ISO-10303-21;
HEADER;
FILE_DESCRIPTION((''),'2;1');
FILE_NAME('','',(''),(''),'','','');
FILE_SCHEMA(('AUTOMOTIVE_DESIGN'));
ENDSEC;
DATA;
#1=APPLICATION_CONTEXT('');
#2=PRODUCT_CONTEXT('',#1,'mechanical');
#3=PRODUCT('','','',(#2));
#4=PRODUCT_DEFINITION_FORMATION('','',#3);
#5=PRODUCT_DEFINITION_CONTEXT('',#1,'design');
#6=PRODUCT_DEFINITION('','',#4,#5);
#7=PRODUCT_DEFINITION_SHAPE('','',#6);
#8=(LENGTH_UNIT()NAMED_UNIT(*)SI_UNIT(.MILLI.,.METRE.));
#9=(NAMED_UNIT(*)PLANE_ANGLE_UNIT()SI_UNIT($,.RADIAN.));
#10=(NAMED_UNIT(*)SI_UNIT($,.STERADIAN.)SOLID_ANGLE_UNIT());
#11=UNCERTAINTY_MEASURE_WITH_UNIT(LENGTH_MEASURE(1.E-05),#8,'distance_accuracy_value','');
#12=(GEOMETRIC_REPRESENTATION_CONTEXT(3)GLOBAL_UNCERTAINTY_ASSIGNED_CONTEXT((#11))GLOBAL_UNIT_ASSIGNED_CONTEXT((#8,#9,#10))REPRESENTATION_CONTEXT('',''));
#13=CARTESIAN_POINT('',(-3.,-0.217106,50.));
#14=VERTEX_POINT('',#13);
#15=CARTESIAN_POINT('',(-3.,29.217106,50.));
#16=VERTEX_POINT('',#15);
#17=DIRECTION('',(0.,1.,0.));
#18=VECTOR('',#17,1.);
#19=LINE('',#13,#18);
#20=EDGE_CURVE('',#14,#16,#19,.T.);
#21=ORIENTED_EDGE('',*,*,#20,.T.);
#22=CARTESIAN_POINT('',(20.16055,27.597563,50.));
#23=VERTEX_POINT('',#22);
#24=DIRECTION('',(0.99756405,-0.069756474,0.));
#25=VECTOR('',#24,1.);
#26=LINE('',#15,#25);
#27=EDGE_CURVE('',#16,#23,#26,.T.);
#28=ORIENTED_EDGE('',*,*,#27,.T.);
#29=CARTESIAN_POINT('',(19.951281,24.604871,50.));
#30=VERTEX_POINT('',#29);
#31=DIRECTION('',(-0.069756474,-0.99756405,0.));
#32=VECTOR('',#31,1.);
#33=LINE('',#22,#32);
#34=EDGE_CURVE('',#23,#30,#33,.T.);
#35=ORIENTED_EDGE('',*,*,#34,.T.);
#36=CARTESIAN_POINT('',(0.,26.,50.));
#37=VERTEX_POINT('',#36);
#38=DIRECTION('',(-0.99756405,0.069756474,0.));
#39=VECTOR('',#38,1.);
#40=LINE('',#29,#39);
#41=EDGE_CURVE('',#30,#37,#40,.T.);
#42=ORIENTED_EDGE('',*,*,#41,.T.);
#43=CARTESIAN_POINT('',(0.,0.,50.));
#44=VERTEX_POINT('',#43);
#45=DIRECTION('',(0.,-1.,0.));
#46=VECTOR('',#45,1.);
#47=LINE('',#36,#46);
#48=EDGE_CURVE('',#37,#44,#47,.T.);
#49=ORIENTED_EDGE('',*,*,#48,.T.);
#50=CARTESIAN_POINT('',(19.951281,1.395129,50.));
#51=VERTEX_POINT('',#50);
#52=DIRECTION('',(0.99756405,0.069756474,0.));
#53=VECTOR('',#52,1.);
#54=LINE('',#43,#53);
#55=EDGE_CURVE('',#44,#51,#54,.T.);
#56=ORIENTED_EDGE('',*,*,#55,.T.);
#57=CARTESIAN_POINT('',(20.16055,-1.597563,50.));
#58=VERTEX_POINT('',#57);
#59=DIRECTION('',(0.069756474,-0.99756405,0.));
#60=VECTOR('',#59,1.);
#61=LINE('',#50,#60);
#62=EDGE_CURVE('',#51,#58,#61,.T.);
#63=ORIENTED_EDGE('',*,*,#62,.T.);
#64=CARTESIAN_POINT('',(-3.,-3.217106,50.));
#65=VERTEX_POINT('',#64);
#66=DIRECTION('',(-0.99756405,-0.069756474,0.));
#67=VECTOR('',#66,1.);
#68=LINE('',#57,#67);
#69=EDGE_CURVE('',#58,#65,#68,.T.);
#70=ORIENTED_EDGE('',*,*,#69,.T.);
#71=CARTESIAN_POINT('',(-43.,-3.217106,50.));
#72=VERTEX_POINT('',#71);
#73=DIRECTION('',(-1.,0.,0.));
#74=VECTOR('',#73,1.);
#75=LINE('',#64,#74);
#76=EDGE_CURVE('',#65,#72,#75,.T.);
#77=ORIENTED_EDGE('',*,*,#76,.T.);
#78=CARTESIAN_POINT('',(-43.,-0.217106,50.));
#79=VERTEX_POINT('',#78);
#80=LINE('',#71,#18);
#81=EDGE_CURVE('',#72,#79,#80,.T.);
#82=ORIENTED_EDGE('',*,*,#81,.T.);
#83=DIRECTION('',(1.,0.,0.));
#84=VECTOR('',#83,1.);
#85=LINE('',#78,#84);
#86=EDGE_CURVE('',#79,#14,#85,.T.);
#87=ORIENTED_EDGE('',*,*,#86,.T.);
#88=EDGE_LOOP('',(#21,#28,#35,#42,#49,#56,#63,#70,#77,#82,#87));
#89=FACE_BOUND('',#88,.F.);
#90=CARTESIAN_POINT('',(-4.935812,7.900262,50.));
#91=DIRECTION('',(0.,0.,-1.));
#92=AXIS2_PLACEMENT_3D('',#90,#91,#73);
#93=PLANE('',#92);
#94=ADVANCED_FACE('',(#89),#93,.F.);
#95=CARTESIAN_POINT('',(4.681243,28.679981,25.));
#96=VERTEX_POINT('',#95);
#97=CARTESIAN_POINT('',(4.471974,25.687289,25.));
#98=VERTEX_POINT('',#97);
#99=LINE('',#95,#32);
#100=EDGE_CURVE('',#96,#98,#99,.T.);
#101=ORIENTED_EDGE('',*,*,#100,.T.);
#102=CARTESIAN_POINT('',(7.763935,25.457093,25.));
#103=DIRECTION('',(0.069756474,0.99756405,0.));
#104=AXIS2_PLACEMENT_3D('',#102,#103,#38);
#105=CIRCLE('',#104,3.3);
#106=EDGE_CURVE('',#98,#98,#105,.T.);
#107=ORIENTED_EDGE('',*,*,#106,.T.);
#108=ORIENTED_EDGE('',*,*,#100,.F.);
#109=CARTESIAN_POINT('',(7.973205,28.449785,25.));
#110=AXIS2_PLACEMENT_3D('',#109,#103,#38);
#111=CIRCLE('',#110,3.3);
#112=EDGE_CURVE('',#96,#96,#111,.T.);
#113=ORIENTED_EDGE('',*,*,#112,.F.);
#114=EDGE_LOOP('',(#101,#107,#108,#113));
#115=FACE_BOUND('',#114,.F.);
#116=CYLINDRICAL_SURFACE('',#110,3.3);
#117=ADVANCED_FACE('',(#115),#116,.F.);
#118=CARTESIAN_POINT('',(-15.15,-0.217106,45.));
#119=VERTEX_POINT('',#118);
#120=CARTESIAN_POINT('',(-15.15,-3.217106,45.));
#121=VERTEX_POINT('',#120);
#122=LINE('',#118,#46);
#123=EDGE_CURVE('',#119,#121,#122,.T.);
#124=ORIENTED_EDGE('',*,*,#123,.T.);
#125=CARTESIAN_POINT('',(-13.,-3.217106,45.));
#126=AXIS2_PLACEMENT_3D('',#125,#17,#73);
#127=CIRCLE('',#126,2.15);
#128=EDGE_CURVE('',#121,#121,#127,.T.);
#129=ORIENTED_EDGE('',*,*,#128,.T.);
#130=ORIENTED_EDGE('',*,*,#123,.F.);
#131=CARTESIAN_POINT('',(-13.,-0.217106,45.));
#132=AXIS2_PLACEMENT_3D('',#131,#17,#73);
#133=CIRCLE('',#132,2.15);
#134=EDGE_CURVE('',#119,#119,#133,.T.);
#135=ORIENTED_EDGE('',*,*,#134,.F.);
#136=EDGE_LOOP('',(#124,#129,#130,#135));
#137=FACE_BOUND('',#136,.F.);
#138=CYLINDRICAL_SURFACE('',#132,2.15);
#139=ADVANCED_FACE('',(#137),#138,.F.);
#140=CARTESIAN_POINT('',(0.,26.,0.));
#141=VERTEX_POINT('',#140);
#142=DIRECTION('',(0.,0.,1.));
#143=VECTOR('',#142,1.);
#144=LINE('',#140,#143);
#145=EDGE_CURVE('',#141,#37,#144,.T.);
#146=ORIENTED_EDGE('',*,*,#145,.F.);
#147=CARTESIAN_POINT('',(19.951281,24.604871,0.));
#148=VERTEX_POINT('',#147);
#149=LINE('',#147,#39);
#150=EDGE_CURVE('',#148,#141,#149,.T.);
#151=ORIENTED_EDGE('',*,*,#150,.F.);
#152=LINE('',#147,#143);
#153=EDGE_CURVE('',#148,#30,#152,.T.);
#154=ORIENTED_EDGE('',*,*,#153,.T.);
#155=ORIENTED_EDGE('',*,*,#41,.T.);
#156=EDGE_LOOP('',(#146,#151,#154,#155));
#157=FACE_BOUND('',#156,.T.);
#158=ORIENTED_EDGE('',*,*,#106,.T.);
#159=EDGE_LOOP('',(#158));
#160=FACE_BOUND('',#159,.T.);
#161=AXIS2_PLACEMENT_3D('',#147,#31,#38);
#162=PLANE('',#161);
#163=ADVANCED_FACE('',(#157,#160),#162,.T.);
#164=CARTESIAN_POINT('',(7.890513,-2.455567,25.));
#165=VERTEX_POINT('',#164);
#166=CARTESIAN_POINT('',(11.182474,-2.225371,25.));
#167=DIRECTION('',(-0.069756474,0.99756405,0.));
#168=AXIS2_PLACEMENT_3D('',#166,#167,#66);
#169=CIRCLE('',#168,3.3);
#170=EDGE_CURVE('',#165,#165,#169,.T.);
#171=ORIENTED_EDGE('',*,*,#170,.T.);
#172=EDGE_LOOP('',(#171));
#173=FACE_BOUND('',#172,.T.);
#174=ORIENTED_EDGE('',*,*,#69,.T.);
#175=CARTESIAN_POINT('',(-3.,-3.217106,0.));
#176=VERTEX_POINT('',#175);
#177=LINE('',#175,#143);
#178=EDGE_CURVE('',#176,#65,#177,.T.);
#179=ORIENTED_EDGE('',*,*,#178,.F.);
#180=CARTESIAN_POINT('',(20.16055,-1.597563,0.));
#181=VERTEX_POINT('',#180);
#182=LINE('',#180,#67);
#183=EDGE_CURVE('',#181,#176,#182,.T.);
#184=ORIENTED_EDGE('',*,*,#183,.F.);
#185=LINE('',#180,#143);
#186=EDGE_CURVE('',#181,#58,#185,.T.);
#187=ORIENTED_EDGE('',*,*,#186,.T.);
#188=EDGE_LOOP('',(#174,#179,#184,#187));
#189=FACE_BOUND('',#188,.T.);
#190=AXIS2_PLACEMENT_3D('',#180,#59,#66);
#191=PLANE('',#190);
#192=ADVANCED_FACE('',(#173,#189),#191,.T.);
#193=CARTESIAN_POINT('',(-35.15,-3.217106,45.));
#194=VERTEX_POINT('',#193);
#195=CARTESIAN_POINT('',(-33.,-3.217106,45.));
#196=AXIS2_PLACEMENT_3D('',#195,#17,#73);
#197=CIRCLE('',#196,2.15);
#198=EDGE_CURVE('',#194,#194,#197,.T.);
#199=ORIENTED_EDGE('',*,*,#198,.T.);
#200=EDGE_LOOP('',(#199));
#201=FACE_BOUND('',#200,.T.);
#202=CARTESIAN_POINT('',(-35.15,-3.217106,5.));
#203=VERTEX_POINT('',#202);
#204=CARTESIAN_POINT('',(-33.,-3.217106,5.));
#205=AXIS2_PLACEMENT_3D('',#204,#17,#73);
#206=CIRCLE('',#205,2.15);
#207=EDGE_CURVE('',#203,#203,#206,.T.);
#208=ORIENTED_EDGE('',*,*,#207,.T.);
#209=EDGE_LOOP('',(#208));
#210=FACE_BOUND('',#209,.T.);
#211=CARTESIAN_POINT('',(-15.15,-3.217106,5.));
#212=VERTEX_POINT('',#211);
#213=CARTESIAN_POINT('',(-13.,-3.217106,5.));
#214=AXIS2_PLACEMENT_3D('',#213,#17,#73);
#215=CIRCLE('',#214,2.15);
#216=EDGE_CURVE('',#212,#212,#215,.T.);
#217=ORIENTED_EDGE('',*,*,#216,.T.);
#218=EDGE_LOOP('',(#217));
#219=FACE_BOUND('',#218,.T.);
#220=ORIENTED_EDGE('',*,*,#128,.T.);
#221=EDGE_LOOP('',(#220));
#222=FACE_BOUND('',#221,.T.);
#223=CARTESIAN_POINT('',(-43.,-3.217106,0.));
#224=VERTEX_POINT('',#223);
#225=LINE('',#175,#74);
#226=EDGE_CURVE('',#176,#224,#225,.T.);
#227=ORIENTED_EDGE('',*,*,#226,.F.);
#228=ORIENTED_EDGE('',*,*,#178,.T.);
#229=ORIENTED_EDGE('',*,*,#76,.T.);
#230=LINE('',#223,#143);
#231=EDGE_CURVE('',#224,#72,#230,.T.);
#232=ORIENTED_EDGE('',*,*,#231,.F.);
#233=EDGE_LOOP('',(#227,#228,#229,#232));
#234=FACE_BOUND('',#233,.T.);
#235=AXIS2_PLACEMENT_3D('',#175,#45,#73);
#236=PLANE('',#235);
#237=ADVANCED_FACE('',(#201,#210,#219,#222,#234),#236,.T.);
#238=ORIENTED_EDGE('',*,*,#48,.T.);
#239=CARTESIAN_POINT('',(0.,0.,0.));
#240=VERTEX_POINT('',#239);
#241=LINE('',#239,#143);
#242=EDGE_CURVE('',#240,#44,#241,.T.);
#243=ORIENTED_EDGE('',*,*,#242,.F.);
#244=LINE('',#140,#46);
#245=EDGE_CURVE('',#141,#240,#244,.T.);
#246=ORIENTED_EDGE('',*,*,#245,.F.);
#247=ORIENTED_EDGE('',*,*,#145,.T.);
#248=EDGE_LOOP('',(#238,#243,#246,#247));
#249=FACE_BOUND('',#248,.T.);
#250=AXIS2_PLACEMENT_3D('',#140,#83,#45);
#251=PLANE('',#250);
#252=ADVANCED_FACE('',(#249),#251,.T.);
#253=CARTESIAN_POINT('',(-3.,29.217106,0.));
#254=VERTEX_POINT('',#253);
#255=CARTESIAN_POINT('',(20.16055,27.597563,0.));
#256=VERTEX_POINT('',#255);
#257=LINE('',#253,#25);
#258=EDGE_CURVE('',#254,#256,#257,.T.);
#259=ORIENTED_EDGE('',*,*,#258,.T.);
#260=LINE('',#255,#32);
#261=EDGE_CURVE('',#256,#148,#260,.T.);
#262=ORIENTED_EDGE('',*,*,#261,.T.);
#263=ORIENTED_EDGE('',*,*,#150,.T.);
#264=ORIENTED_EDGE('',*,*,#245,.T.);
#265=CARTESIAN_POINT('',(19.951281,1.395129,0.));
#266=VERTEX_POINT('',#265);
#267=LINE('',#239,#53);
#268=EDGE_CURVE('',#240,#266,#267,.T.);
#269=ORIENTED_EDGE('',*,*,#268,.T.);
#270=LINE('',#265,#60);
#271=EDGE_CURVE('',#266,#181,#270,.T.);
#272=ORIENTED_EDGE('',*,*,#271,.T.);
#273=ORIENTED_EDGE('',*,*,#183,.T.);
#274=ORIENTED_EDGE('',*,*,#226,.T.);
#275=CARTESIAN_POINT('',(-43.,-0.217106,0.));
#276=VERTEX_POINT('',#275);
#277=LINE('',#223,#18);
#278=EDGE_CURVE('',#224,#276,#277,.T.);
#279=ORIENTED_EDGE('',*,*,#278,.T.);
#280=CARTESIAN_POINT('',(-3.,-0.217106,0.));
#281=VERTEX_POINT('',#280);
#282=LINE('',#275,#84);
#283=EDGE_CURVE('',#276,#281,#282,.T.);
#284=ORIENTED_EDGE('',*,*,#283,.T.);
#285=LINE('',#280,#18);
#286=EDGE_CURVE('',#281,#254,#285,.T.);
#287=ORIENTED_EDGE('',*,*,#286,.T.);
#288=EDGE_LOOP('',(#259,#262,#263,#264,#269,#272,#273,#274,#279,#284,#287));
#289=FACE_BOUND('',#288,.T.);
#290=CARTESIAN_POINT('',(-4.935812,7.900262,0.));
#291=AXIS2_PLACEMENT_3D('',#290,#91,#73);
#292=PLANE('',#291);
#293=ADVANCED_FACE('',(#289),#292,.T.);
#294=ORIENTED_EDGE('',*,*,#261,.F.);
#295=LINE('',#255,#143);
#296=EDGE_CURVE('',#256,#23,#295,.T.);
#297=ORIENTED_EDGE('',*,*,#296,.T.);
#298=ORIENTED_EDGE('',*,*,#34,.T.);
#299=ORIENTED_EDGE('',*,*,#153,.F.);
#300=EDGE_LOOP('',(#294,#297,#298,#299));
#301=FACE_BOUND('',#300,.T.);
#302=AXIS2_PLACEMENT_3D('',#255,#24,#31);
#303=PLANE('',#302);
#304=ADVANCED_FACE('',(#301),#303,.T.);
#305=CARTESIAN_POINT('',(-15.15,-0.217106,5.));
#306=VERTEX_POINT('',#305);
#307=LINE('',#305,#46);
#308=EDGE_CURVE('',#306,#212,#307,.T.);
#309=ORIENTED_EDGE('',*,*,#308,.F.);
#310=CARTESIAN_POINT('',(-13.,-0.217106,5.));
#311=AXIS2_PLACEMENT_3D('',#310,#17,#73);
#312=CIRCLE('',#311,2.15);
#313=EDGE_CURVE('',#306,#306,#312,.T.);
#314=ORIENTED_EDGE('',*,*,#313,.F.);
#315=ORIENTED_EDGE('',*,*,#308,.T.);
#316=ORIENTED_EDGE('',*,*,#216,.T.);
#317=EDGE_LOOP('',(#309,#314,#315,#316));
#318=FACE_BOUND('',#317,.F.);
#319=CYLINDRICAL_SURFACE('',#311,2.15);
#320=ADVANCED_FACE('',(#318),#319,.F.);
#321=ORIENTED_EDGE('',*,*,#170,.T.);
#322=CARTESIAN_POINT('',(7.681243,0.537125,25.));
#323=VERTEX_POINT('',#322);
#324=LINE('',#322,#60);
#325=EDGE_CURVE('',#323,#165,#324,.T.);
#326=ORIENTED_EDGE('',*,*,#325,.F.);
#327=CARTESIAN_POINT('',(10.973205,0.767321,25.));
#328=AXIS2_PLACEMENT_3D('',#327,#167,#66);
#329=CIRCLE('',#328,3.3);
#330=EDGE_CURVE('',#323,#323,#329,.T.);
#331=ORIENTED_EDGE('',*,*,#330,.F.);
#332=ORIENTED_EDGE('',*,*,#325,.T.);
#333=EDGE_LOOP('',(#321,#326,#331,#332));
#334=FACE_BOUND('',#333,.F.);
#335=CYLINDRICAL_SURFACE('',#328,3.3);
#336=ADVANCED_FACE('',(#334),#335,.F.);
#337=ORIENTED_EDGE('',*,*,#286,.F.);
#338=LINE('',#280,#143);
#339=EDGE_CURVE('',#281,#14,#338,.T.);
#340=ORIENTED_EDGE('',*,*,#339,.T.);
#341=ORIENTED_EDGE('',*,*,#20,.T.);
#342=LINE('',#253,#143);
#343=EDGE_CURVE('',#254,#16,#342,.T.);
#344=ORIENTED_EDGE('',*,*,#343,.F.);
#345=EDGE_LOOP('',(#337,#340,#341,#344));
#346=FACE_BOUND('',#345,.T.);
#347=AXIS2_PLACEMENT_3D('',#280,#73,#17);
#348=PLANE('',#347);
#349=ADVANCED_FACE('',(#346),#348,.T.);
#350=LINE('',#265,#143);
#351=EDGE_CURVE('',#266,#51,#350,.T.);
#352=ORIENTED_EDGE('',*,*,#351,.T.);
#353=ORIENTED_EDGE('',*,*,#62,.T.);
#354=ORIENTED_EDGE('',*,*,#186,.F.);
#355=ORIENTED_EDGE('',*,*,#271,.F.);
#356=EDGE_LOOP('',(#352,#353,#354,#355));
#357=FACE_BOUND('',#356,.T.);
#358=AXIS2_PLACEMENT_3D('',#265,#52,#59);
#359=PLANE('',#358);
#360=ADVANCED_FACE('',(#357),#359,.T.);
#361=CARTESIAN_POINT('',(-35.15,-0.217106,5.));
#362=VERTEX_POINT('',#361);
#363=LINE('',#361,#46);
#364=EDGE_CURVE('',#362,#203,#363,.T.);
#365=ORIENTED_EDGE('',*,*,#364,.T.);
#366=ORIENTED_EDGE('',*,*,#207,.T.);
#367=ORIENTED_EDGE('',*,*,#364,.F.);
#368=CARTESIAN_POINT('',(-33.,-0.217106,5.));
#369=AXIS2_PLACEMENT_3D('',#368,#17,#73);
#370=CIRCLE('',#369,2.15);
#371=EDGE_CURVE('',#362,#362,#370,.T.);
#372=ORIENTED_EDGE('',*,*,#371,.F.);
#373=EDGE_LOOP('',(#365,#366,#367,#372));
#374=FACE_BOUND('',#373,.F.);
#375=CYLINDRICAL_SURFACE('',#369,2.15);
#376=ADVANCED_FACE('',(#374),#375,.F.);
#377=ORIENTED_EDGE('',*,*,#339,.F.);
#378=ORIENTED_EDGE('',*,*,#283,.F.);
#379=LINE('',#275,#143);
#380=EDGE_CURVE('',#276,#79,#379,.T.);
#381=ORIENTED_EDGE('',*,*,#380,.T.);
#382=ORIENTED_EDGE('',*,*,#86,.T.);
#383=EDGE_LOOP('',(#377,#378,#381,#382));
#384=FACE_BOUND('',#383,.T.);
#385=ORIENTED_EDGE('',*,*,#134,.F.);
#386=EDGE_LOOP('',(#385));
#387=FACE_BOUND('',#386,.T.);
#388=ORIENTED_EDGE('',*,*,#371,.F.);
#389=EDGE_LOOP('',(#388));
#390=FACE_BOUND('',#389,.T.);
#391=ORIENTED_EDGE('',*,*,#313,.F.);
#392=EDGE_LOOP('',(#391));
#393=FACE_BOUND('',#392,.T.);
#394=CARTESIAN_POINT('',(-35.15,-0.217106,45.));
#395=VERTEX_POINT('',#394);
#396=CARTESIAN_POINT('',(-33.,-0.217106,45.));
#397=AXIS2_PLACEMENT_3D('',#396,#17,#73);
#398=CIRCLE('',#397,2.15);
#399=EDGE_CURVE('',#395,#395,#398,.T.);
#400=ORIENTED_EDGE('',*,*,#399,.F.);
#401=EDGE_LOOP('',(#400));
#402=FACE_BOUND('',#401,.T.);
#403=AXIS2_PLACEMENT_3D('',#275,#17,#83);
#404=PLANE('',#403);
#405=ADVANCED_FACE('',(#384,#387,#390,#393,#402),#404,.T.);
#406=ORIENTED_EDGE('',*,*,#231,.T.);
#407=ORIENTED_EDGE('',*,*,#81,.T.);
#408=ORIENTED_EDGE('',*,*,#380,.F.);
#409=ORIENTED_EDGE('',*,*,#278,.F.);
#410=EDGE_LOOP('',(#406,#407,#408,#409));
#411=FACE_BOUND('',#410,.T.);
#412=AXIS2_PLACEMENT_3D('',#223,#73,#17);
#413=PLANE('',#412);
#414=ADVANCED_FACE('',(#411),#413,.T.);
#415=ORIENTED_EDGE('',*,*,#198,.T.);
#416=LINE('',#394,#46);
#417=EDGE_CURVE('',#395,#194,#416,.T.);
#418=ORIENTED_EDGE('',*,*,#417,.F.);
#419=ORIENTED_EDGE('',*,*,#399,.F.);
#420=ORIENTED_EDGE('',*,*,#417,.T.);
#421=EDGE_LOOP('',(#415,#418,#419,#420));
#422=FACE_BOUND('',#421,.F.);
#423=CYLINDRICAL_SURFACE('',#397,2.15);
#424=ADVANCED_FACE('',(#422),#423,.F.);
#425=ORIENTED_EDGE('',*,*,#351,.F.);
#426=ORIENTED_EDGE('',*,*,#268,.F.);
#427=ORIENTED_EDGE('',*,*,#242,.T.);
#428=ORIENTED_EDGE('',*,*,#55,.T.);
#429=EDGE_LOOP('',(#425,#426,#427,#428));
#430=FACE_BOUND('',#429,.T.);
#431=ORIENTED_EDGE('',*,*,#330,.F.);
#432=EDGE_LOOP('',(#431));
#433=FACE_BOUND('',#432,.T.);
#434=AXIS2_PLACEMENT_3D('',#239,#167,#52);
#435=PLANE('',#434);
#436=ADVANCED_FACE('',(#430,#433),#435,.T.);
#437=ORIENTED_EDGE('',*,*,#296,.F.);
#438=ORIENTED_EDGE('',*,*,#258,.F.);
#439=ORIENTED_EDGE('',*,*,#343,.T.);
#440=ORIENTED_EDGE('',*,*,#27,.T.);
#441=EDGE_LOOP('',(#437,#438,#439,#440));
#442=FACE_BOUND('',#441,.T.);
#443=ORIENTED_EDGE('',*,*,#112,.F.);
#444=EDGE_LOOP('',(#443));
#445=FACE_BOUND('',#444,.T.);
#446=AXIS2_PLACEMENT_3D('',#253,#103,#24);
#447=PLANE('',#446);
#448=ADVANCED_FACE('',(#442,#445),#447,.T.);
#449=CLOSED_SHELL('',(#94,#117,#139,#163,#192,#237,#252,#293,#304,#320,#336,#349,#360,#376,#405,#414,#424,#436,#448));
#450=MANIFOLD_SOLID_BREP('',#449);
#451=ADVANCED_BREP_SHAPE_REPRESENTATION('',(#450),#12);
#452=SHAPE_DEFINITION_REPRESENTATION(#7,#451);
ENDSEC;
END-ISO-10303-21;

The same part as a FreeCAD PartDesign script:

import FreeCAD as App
import Part
import Sketcher
from FreeCAD import Vector
Q = App.Units.Quantity


def add_polygon(sketch, points):
    """Adds a closed chain of lines whose ends are joined by coincident constraints."""
    first, n = sketch.GeometryCount, len(points)
    for a, b in zip(points, points[1:] + points[:1]):
        sketch.addGeometry(Part.LineSegment(App.Vector(*a, 0), App.Vector(*b, 0)), False)
    for i in range(n):
        sketch.addConstraint(Sketcher.Constraint("Coincident", first + i, 2, first + (i + 1) % n, 1))

doc = App.newDocument("Part")
body = doc.addObject("PartDesign::Body", "Body")

# Sketch on XY plane
sketch1 = doc.addObject("Sketcher::SketchObject", "Sketch")
body.addObject(sketch1)
sketch1.AttachmentSupport = (doc.XY_Plane, [""])
sketch1.MapMode = "FlatFace"
add_polygon(sketch1, [(0, 0), (0, 26), (20, 24.6), (20.2, 27.6), (-3, 29.2), (-3, -0.2), (-43, -0.2), (-43, -3.2), (-3, -3.2), (20.2, -1.6), (20, 1.4)])  # lines 0-10
sketch1.addConstraint([
    Sketcher.Constraint("Vertical", 0),
    Sketcher.Constraint("Vertical", 4),
    Sketcher.Constraint("Horizontal", 5),
    Sketcher.Constraint("Vertical", 6),
    Sketcher.Constraint("Horizontal", 7),
    Sketcher.Constraint("Coincident", 10, 2, -1, 1),
    Sketcher.Constraint("Perpendicular", 1, 2),
    Sketcher.Constraint("Perpendicular", 2, 3),
    Sketcher.Constraint("Perpendicular", 8, 9),
    Sketcher.Constraint("Perpendicular", 9, 10),
    Sketcher.Constraint("Vertical", 4, 2, 7, 2),
    Sketcher.Constraint("Vertical", 2, 2, 8, 2),
    Sketcher.Constraint("Vertical", 1, 2, 9, 2),
    Sketcher.Constraint("Equal", 3, 8),
    Sketcher.Constraint("DistanceX", 5, 2, 5, 1, Q("40 mm")),
    Sketcher.Constraint("DistanceY", 0, 1, 0, 2, Q("26 mm")),
    Sketcher.Constraint("DistanceY", 6, 2, 6, 1, Q("3 mm")),
    Sketcher.Constraint("Angle", 1, Q("-4 deg")),
    Sketcher.Constraint("Distance", 1, Q("20 mm")),
    Sketcher.Constraint("Distance", 2, Q("3 mm")),
    Sketcher.Constraint("DistanceX", 3, 2, -1, 1, Q("3 mm")),
])
pad1 = doc.addObject("PartDesign::Pad", "Pad")
body.addObject(pad1)
pad1.Profile = sketch1
pad1.Length = 50

# Sketch on XZ plane
sketch2 = doc.addObject("Sketcher::SketchObject", "Sketch001")
body.addObject(sketch2)
sketch2.AttachmentSupport = (doc.XZ_Plane, [""])
sketch2.MapMode = "FlatFace"
sketch2.AttachmentOffset = App.Placement(Vector(0, 0, 0.217106), App.Rotation())
sketch2.addGeometry([
    Part.Circle(Vector(-13, 45, 0), Vector(0, 0, 1), 2.1),
    Part.Circle(Vector(-33, 45, 0), Vector(0, 0, 1), 2.1),
    Part.Circle(Vector(-13, 5, 0), Vector(0, 0, 1), 2.1),
    Part.Circle(Vector(-33, 5, 0), Vector(0, 0, 1), 2.1),
], False)
sketch2.addConstraint([
    Sketcher.Constraint("Equal", 0, 1),
    Sketcher.Constraint("Equal", 1, 2),
    Sketcher.Constraint("Equal", 2, 3),
    Sketcher.Constraint("Horizontal", 0, 3, 1, 3),
    Sketcher.Constraint("Horizontal", 2, 3, 3, 3),
    Sketcher.Constraint("Vertical", 0, 3, 2, 3),
    Sketcher.Constraint("Vertical", 1, 3, 3, 3),
    Sketcher.Constraint("Diameter", 0, Q("4.3 mm")),
    Sketcher.Constraint("DistanceX", 0, 3, -1, 1, Q("13 mm")),
    Sketcher.Constraint("DistanceY", -1, 1, 0, 3, Q("45 mm")),
    Sketcher.Constraint("DistanceX", 1, 3, -1, 1, Q("33 mm")),
    Sketcher.Constraint("DistanceY", -1, 1, 2, 3, Q("5 mm")),
])
pocket1 = doc.addObject("PartDesign::Pocket", "Pocket")
body.addObject(pocket1)
pocket1.Profile = sketch2
pocket1.Length = 5
pocket1.Reversed = True

# Sketch on an angled plane
sketch3 = doc.addObject("Sketcher::SketchObject", "Sketch002")
body.addObject(sketch3)
sketch3.Placement = App.Placement(Vector(2.01852, 28.866177, 0), App.Rotation(Vector(-0.99756405, 0.069756474, 0), Vector(0, 0, 1), Vector(0.069756474, 0.99756405, 0), "ZXY"))
sketch3.addGeometry(Part.Circle(Vector(-6, 25, 0), Vector(0, 0, 1), 3.3), False)
sketch3.addConstraint([
    Sketcher.Constraint("Diameter", 0, Q("6.6 mm")),
    Sketcher.Constraint("DistanceY", -1, 1, 0, 3, Q("25 mm")),
    Sketcher.Constraint("DistanceX", 0, 3, -1, 1, Q("5.969226 mm")),
])
pocket2 = doc.addObject("PartDesign::Pocket", "Pocket001")
body.addObject(pocket2)
pocket2.Profile = sketch3
pocket2.Length = 5

# Sketch on an angled plane
sketch4 = doc.addObject("Sketcher::SketchObject", "Sketch003")
body.addObject(sketch4)
sketch4.Placement = App.Placement(Vector(0, 0, 0), App.Rotation(Vector(-0.99756405, -0.069756474, 0), Vector(0, 0, 1), Vector(-0.069756474, 0.99756405, 0), "ZXY"))
sketch4.addGeometry(Part.Circle(Vector(-11, 25, 0), Vector(0, 0, 1), 3.3), False)
sketch4.addConstraint([
    Sketcher.Constraint("Diameter", 0, Q("6.6 mm")),
    Sketcher.Constraint("DistanceX", 0, 3, -1, 1, Q("11 mm")),
    Sketcher.Constraint("DistanceY", -1, 1, 0, 3, Q("25 mm")),
])
pocket3 = doc.addObject("PartDesign::Pocket", "Pocket002")
body.addObject(pocket3)
pocket3.Profile = sketch4
pocket3.Length = 5

doc.recompute()
